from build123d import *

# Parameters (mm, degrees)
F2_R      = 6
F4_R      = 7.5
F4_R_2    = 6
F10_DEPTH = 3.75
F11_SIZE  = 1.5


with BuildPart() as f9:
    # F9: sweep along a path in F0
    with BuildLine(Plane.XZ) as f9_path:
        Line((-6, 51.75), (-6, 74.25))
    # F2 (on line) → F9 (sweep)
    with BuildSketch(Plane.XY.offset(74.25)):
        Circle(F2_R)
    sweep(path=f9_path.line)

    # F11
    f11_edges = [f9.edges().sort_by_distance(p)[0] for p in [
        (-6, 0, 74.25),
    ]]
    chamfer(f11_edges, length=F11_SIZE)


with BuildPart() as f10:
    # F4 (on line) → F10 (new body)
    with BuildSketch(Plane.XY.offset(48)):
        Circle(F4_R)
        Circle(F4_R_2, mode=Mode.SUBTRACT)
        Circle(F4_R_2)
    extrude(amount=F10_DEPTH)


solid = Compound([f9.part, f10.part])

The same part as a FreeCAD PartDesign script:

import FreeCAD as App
import Part
import Sketcher

V = App.Vector
Q = App.Units.Quantity


def edges_at(feature, points):
    """Names of the edges that pass closest to the given points."""
    edges = feature.Shape.Edges
    near = lambda p: min(range(len(edges)), key=lambda i: edges[i].distToShape(Part.Vertex(*p))[0])
    return sorted({f"Edge{near(p) + 1}" for p in points})

doc = App.newDocument("Part")
body = doc.addObject("PartDesign::Body", "Body")

# Sketch on XY plane
sketch1 = body.newObject("Sketcher::SketchObject", "Sketch")
sketch1.AttachmentSupport = (doc.getObject("XY_Plane"), [""])
sketch1.MapMode = "FlatFace"
sketch1.AttachmentOffset = App.Placement(V(0, 0, 74.25), App.Rotation())
sketch1.addGeometry(Part.Circle(V(0, 0, 0), V(0, 0, 1), 6), False)
sketch1.addConstraint(Sketcher.Constraint("Coincident", 0, 3, -1, 1))
sketch1.addConstraint(Sketcher.Constraint("Diameter", 0, Q("12 mm")))

# Sketch on XZ plane
sketch2 = body.newObject("Sketcher::SketchObject", "Sketch001")
sketch2.AttachmentSupport = (doc.getObject("XZ_Plane"), [""])
sketch2.MapMode = "FlatFace"
sketch2.addGeometry(Part.LineSegment(V(-6, 51.75, 0), V(-6, 74.25, 0)), False)
sketch2.addConstraint(Sketcher.Constraint("Vertical", 0))
sketch2.addConstraint(Sketcher.Constraint("DistanceY", 0, 1, 0, 2, Q("22.5 mm")))
sketch2.addConstraint(Sketcher.Constraint("DistanceX", 0, 1, -1, 1, Q("6 mm")))
sketch2.addConstraint(Sketcher.Constraint("DistanceY", -1, 1, 0, 1, Q("51.75 mm")))
doc.recompute()

additivepipe = body.newObject("PartDesign::AdditivePipe", "AdditivePipe")
additivepipe.Profile = sketch1
additivepipe.Spine = (sketch2, ["Edge1"])
doc.recompute()

chamfer = body.newObject("PartDesign::Chamfer", "Chamfer")
chamfer.Base = (additivepipe, edges_at(additivepipe, [(-6, 0, 74.25)]))
chamfer.Size = 1.5
body2 = doc.addObject("PartDesign::Body", "Body001")

# Sketch on XY plane
sketch3 = body2.newObject("Sketcher::SketchObject", "Sketch002")
sketch3.AttachmentSupport = (doc.getObject("XY_Plane001"), [""])
sketch3.MapMode = "FlatFace"
sketch3.AttachmentOffset = App.Placement(V(0, 0, 48), App.Rotation())
sketch3.addGeometry(Part.Circle(V(0, 0, 0), V(0, 0, 1), 7.5), False)
sketch3.addConstraint(Sketcher.Constraint("Coincident", 0, 3, -1, 1))
sketch3.addConstraint(Sketcher.Constraint("Diameter", 0, Q("15 mm")))
pad1 = body2.newObject("PartDesign::Pad", "Pad")
pad1.Profile = sketch3
pad1.Length = 3.75

doc.recompute()
